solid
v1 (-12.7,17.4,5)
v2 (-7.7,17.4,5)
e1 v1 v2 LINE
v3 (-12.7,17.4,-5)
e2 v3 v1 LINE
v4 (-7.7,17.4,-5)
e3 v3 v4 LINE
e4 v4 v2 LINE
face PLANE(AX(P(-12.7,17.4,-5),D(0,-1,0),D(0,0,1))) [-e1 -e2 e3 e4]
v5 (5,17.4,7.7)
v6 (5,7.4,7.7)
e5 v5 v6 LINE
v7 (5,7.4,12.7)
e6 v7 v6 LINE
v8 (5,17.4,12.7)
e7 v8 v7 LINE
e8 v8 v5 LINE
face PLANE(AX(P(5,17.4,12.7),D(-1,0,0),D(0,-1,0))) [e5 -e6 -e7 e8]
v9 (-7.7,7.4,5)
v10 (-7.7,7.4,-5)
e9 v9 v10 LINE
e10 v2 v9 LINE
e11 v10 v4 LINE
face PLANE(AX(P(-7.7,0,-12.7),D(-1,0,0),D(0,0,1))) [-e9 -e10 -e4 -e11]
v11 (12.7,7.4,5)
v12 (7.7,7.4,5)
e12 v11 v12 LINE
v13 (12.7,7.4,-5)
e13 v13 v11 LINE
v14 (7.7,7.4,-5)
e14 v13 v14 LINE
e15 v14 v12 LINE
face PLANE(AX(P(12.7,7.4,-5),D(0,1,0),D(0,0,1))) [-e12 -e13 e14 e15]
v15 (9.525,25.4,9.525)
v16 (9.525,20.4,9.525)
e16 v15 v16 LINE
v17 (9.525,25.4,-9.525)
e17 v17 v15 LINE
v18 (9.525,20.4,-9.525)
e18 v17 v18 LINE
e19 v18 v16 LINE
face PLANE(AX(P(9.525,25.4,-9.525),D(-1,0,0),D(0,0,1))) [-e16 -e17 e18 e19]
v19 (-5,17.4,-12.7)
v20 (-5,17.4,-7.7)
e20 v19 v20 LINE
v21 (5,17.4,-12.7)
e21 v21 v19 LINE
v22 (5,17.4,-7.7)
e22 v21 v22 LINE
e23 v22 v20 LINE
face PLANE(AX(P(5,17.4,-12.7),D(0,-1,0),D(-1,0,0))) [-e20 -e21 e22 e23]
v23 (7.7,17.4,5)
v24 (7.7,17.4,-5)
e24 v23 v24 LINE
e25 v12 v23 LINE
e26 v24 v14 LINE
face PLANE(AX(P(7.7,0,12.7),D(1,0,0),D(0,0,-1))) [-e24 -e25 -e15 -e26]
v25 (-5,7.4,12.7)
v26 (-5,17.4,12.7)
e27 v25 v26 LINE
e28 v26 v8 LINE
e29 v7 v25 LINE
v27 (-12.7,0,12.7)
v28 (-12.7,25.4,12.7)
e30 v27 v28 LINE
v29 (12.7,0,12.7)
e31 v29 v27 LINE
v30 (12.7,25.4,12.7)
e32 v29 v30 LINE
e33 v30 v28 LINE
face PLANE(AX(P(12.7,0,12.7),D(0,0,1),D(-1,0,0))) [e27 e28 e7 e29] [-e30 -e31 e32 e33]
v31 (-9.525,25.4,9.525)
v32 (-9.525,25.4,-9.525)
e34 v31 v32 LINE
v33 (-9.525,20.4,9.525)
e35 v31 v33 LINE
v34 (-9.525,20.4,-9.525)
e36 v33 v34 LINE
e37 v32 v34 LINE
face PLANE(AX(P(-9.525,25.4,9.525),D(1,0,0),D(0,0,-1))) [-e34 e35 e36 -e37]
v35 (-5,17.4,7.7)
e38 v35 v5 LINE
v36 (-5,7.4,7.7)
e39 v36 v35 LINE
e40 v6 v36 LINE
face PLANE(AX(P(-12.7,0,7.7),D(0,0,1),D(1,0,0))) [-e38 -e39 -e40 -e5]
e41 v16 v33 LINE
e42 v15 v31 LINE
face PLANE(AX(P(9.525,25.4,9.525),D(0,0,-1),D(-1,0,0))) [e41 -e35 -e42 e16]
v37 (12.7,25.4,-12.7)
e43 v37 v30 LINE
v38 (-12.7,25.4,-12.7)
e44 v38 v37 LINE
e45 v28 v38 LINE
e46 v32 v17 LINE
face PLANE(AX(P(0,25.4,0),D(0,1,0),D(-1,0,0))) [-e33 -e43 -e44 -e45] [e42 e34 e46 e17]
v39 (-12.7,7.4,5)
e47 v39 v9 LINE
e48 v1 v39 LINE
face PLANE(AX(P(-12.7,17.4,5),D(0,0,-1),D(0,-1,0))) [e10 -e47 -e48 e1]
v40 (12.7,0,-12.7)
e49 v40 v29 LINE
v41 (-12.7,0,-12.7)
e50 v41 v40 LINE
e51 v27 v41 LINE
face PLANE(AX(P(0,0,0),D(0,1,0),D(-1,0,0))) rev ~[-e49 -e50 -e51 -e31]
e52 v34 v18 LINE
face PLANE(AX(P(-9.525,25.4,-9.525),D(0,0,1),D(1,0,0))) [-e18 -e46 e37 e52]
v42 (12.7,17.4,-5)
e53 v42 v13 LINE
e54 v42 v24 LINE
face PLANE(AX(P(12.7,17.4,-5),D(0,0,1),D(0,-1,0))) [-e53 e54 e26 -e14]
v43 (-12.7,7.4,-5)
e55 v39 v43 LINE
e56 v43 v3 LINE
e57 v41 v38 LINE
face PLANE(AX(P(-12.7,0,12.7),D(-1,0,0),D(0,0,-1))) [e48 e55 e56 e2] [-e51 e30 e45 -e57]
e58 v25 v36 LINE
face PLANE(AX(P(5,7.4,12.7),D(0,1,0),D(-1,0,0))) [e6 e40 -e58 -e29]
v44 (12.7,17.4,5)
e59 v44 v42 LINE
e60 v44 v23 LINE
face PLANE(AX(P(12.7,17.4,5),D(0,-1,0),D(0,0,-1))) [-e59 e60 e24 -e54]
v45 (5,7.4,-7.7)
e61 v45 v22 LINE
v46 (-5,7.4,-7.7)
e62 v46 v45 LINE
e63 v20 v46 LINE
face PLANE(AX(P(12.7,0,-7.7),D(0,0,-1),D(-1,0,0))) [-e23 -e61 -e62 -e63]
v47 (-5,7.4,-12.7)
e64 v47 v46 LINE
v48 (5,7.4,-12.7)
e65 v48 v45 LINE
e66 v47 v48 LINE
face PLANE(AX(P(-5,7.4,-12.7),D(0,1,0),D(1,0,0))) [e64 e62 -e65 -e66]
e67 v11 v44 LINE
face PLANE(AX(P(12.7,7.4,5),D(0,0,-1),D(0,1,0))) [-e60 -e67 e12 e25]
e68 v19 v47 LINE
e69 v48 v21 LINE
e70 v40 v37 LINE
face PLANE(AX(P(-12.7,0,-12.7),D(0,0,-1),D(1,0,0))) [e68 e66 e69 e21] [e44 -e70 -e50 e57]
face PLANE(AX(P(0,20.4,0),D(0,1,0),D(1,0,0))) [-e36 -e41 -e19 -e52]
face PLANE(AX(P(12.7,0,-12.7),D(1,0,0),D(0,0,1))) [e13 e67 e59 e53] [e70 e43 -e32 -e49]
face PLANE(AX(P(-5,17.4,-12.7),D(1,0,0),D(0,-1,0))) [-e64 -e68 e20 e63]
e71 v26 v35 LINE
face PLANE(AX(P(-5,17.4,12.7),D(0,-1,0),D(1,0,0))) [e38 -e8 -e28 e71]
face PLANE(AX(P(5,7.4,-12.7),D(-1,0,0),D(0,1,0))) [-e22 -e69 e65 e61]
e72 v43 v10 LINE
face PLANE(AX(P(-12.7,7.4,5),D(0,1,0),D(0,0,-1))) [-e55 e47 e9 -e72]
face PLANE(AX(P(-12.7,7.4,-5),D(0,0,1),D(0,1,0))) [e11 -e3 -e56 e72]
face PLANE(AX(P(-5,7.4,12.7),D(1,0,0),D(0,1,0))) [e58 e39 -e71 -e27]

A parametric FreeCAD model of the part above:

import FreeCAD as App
import Part
import Sketcher
Q = App.Units.Quantity

doc = App.newDocument("Part")
body = doc.addObject("PartDesign::Body", "Body")

# Sketch on XZ plane
sketch1 = body.newObject("Sketcher::SketchObject", "Sketch")
sketch1.AttachmentSupport = (doc.getObject("XZ_Plane"), [""])
sketch1.MapMode = "FlatFace"
sketch1.addGeometry(Part.LineSegment(App.Vector(13, 13, 0), App.Vector(13, -13, 0)), False)
sketch1.addGeometry(Part.LineSegment(App.Vector(13, -13, 0), App.Vector(-13, -13, 0)), False)
sketch1.addGeometry(Part.LineSegment(App.Vector(-13, -13, 0), App.Vector(-13, 13, 0)), False)
sketch1.addGeometry(Part.LineSegment(App.Vector(-13, 13, 0), App.Vector(13, 13, 0)), False)
sketch1.addConstraint(Sketcher.Constraint("Coincident", 0, 2, 1, 1))
sketch1.addConstraint(Sketcher.Constraint("Coincident", 1, 2, 2, 1))
sketch1.addConstraint(Sketcher.Constraint("Coincident", 2, 2, 3, 1))
sketch1.addConstraint(Sketcher.Constraint("Coincident", 3, 2, 0, 1))
sketch1.addConstraint(Sketcher.Constraint("Vertical", 0))
sketch1.addConstraint(Sketcher.Constraint("Horizontal", 1))
sketch1.addConstraint(Sketcher.Constraint("Vertical", 2))
sketch1.addConstraint(Sketcher.Constraint("Horizontal", 3))
sketch1.addConstraint(Sketcher.Constraint("Symmetric", 0, 2, 2, 2, -1, 1))
sketch1.addConstraint(Sketcher.Constraint("Equal", 3, 0))
sketch1.addConstraint(Sketcher.Constraint("DistanceX", 1, 2, 1, 1, Q("1 in")))
pad1 = body.newObject("PartDesign::Pad", "Pad")
pad1.Profile = sketch1
pad1.Length = Q("1 in")
pad1.Reversed = True

# Sketch on XZ plane
sketch2 = body.newObject("Sketcher::SketchObject", "Sketch001")
sketch2.AttachmentSupport = (doc.getObject("XZ_Plane"), [""])
sketch2.MapMode = "FlatFace"
sketch2.AttachmentOffset = App.Placement(App.Vector(0, 0, -1 * 25.4), App.Rotation())
sketch2.addGeometry(Part.LineSegment(App.Vector(10, 10, 0), App.Vector(10, -10, 0)), False)
sketch2.addGeometry(Part.LineSegment(App.Vector(10, -10, 0), App.Vector(-10, -10, 0)), False)
sketch2.addGeometry(Part.LineSegment(App.Vector(-10, -10, 0), App.Vector(-10, 10, 0)), False)
sketch2.addGeometry(Part.LineSegment(App.Vector(-10, 10, 0), App.Vector(10, 10, 0)), False)
sketch2.addConstraint(Sketcher.Constraint("Coincident", 0, 2, 1, 1))
sketch2.addConstraint(Sketcher.Constraint("Coincident", 1, 2, 2, 1))
sketch2.addConstraint(Sketcher.Constraint("Coincident", 2, 2, 3, 1))
sketch2.addConstraint(Sketcher.Constraint("Coincident", 3, 2, 0, 1))
sketch2.addConstraint(Sketcher.Constraint("Vertical", 0))
sketch2.addConstraint(Sketcher.Constraint("Horizontal", 1))
sketch2.addConstraint(Sketcher.Constraint("Vertical", 2))
sketch2.addConstraint(Sketcher.Constraint("Horizontal", 3))
sketch2.addConstraint(Sketcher.Constraint("Symmetric", 0, 2, 2, 2, -1, 1))
sketch2.addConstraint(Sketcher.Constraint("Equal", 3, 0))
sketch2.addConstraint(Sketcher.Constraint("DistanceX", 1, 2, 1, 1, Q("0.75 in")))
pocket1 = body.newObject("PartDesign::Pocket", "Pocket")
pocket1.Profile = sketch2
pocket1.Length = 5
pocket1.Reversed = True

# Sketch on YZ plane
sketch3 = body.newObject("Sketcher::SketchObject", "Sketch002")
sketch3.AttachmentSupport = (doc.getObject("YZ_Plane"), [""])
sketch3.MapMode = "FlatFace"
sketch3.AttachmentOffset = App.Placement(App.Vector(0, 0, 0.5 * 25.4), App.Rotation())
sketch3.addGeometry(Part.LineSegment(App.Vector(7, 5, 0), App.Vector(7, -5, 0)), False)
sketch3.addGeometry(Part.LineSegment(App.Vector(7, -5, 0), App.Vector(17, -5, 0)), False)
sketch3.addGeometry(Part.LineSegment(App.Vector(17, -5, 0), App.Vector(17, 5, 0)), False)
sketch3.addGeometry(Part.LineSegment(App.Vector(17, 5, 0), App.Vector(7, 5, 0)), False)
sketch3.addConstraint(Sketcher.Constraint("Coincident", 0, 2, 1, 1))
sketch3.addConstraint(Sketcher.Constraint("Coincident", 1, 2, 2, 1))
sketch3.addConstraint(Sketcher.Constraint("Coincident", 2, 2, 3, 1))
sketch3.addConstraint(Sketcher.Constraint("Coincident", 3, 2, 0, 1))
sketch3.addConstraint(Sketcher.Constraint("Vertical", 0))
sketch3.addConstraint(Sketcher.Constraint("Horizontal", 1))
sketch3.addConstraint(Sketcher.Constraint("Vertical", 2))
sketch3.addConstraint(Sketcher.Constraint("Horizontal", 3))
sketch3.addConstraint(Sketcher.Constraint("Equal", 3, 0))
sketch3.addConstraint(Sketcher.Constraint("DistanceX", 1, 1, 1, 2, Q("0.3937 in")))
sketch3.addConstraint(Sketcher.Constraint("DistanceX", -1, 1, 0, 2, Q("7.4 mm")))
sketch3.addConstraint(Sketcher.Constraint("DistanceY", 0, 2, -1, 1, Q("5 mm")))
pocket2 = body.newObject("PartDesign::Pocket", "Pocket001")
pocket2.Profile = sketch3
pocket2.Length = 5
doc.recompute()

polarpattern = body.newObject("PartDesign::PolarPattern", "PolarPattern")
polarpattern.Originals = [pocket2]
polarpattern.Axis = (doc.getObject("Y_Axis"), [""])
polarpattern.Angle = 360
polarpattern.Occurrences = 4
body.Tip = polarpattern

doc.recompute()
